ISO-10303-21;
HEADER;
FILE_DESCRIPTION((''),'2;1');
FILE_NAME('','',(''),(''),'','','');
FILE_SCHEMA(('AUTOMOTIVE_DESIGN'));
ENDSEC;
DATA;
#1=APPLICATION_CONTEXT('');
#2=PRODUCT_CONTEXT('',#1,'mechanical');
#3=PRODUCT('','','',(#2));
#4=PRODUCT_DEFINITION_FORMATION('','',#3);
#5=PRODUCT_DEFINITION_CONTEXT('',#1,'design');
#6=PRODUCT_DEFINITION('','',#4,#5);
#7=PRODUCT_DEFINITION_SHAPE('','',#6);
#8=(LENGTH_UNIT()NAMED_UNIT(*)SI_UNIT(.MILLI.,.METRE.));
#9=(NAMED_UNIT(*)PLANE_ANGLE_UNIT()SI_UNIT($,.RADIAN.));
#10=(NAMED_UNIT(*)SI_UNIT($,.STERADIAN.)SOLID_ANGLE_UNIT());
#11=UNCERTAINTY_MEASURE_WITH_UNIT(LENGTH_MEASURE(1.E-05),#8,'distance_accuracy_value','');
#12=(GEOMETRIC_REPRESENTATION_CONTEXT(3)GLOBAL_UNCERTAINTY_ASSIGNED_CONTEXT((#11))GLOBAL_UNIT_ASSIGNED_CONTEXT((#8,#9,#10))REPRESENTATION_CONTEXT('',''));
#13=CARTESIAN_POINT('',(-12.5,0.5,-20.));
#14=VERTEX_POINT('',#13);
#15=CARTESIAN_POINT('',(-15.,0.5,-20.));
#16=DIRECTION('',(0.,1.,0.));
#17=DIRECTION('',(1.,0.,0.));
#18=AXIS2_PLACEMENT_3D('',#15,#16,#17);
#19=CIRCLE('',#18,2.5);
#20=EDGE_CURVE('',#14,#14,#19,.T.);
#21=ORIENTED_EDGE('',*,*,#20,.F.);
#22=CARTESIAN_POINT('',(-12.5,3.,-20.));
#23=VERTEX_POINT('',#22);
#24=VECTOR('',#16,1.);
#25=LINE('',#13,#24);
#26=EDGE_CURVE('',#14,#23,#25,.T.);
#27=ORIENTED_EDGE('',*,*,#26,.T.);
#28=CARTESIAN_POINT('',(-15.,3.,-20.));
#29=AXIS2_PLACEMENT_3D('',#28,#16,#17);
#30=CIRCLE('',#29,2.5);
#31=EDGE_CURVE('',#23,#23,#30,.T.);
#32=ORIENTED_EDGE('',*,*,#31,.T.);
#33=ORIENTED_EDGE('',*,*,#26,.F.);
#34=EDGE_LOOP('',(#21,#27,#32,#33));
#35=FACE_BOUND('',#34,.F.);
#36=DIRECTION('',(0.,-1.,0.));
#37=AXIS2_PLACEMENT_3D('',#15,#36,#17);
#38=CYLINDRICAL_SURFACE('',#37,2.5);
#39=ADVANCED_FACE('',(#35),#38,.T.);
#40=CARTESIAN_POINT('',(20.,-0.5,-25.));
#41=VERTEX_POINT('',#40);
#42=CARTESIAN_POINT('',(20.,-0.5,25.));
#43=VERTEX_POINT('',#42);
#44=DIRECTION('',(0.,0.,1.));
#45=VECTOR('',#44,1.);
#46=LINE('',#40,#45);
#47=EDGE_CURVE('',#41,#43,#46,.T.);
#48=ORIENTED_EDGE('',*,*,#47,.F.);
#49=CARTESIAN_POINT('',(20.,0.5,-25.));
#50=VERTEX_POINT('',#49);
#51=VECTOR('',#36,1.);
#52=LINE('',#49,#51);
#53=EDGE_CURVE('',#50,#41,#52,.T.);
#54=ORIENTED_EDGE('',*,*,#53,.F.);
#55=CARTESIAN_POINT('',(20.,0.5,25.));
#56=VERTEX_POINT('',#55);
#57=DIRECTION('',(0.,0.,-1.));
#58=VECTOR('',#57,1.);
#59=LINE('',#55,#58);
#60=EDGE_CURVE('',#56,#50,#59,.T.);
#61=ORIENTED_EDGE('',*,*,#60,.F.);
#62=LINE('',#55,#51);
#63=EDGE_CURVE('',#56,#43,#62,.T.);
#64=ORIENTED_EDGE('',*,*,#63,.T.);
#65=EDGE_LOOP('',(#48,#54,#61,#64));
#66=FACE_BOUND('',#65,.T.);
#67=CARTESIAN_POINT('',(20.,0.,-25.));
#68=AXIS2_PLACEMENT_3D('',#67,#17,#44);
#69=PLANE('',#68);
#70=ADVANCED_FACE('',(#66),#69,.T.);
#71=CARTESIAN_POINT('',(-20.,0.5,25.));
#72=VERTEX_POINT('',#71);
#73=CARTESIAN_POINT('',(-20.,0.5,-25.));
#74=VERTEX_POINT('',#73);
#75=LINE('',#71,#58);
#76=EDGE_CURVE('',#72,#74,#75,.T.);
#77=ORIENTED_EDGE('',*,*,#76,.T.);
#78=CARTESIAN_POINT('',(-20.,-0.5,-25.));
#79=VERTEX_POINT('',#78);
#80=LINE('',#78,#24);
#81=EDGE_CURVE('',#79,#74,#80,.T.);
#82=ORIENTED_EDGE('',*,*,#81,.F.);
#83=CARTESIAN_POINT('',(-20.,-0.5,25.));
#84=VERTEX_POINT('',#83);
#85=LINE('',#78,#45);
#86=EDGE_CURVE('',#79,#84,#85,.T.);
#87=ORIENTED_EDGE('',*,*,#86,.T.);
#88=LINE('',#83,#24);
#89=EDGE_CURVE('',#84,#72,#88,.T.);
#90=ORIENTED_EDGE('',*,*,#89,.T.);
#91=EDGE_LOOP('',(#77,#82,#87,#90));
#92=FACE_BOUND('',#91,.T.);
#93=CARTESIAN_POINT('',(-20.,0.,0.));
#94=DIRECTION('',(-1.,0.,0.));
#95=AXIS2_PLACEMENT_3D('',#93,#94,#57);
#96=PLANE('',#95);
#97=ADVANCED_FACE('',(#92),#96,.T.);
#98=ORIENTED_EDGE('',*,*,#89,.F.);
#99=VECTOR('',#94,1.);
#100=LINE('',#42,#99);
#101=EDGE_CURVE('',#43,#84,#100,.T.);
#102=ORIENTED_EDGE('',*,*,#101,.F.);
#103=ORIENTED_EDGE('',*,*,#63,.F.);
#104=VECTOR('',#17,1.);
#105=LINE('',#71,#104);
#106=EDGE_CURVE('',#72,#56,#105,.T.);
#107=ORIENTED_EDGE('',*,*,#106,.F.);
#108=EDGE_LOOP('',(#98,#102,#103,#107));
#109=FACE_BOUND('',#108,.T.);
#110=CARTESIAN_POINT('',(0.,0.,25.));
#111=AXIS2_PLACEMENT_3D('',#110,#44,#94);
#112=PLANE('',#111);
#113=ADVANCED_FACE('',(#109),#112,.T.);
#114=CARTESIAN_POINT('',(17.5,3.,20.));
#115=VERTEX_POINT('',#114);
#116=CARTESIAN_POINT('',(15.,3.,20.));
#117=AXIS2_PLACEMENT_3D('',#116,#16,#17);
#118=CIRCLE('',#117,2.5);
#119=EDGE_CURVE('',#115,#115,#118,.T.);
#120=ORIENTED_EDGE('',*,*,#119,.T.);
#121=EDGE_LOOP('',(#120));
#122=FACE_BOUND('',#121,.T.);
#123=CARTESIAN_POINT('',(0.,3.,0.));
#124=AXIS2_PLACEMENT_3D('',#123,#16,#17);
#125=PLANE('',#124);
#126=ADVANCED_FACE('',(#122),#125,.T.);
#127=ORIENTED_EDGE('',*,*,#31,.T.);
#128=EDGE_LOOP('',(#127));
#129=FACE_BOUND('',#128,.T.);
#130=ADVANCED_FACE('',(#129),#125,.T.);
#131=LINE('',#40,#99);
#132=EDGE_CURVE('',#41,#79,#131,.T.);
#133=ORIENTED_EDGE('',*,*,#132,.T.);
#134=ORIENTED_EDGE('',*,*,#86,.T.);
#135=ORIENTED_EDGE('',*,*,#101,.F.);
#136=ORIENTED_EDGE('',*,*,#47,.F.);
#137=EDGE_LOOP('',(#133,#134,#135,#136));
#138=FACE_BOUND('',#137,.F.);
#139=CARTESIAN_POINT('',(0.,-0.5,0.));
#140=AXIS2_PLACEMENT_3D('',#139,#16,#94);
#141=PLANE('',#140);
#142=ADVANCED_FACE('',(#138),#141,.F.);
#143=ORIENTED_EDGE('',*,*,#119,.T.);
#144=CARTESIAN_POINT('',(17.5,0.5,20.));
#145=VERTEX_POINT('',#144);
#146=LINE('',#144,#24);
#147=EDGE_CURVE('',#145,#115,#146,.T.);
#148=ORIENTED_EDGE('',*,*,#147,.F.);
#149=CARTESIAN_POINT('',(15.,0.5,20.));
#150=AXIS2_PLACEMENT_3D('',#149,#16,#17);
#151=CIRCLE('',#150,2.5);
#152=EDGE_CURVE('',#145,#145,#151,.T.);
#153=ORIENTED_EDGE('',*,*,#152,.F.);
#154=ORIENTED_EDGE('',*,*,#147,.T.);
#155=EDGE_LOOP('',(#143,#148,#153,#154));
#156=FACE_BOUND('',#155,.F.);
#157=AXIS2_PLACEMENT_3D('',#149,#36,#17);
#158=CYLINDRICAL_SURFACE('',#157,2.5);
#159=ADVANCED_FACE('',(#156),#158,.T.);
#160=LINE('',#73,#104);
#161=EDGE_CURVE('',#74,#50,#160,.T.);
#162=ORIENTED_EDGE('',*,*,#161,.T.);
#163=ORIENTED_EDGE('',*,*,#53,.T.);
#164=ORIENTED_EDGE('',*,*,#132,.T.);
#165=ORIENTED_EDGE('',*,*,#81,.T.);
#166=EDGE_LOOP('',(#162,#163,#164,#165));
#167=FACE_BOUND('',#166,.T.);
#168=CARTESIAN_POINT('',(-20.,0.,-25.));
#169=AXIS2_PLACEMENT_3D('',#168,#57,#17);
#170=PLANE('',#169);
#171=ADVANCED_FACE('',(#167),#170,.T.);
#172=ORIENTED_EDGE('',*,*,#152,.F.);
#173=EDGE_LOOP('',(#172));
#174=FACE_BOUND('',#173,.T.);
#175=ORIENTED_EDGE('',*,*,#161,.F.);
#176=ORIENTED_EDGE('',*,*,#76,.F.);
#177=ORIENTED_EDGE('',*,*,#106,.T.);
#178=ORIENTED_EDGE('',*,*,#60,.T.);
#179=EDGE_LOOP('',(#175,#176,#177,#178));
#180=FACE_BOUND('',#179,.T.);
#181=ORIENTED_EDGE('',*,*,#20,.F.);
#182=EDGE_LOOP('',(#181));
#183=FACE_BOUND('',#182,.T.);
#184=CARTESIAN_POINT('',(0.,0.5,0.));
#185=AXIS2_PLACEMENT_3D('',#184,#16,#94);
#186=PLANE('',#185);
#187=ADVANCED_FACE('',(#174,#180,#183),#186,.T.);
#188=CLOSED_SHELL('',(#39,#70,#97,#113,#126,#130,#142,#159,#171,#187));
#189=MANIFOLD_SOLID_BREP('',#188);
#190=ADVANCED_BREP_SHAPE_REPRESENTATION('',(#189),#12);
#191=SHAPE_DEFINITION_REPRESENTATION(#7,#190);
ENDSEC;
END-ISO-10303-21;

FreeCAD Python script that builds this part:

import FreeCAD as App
import Part
import Sketcher
from FreeCAD import Vector
Q = App.Units.Quantity

doc = App.newDocument("Part")
body = doc.addObject("PartDesign::Body", "Body")

# Sketch on XZ plane
sketch1 = doc.addObject("Sketcher::SketchObject", "Sketch")
body.addObject(sketch1)
sketch1.AttachmentSupport = (doc.XZ_Plane, [""])
sketch1.MapMode = "FlatFace"
sketch1.addGeometry([
    Part.LineSegment(Vector(-20, -25, 0), Vector(-20, 25, 0)),
    Part.LineSegment(Vector(-20, 25, 0), Vector(20, 25, 0)),
    Part.LineSegment(Vector(20, 25, 0), Vector(20, -25, 0)),
    Part.LineSegment(Vector(20, -25, 0), Vector(-20, -25, 0)),
], False)
sketch1.addConstraint([
    Sketcher.Constraint("Coincident", 0, 2, 1, 1),
    Sketcher.Constraint("Coincident", 1, 2, 2, 1),
    Sketcher.Constraint("Coincident", 2, 2, 3, 1),
    Sketcher.Constraint("Coincident", 3, 2, 0, 1),
    Sketcher.Constraint("Vertical", 0),
    Sketcher.Constraint("Horizontal", 1),
    Sketcher.Constraint("Vertical", 2),
    Sketcher.Constraint("Horizontal", 3),
    Sketcher.Constraint("Symmetric", 0, 2, 2, 2, -1, 1),
    Sketcher.Constraint("DistanceX", 1, 1, 1, 2, Q("40 mm")),
    Sketcher.Constraint("DistanceY", 0, 1, 0, 2, Q("50 mm")),
])
pad1 = doc.addObject("PartDesign::Pad", "Pad")
body.addObject(pad1)
pad1.Profile = sketch1
pad1.Length = 1
pad1.Midplane = True

# Sketch on XZ plane
sketch2 = doc.addObject("Sketcher::SketchObject", "Sketch001")
body.addObject(sketch2)
sketch2.AttachmentSupport = (doc.XZ_Plane, [""])
sketch2.MapMode = "FlatFace"
sketch2.AttachmentOffset = App.Placement(Vector(0, 0, -0.5), App.Rotation())
sketch2.addGeometry([
    Part.Circle(Vector(-15, -20, 0), Vector(0, 0, 1), 2.5),
    Part.Circle(Vector(15, 20, 0), Vector(0, 0, 1), 2.5),
], False)
sketch2.addConstraint([
    Sketcher.Constraint("Equal", 0, 1),
    Sketcher.Constraint("Symmetric", 0, 3, 1, 3, -1, 1),
    Sketcher.Constraint("Diameter", 0, Q("5 mm")),
    Sketcher.Constraint("DistanceX", 0, 3, -1, 1, Q("15 mm")),
    Sketcher.Constraint("DistanceY", 0, 3, -1, 1, Q("20 mm")),
])
pad2 = doc.addObject("PartDesign::Pad", "Pad001")
body.addObject(pad2)
pad2.Profile = sketch2
pad2.Length = 2.5
pad2.Reversed = True

doc.recompute()
